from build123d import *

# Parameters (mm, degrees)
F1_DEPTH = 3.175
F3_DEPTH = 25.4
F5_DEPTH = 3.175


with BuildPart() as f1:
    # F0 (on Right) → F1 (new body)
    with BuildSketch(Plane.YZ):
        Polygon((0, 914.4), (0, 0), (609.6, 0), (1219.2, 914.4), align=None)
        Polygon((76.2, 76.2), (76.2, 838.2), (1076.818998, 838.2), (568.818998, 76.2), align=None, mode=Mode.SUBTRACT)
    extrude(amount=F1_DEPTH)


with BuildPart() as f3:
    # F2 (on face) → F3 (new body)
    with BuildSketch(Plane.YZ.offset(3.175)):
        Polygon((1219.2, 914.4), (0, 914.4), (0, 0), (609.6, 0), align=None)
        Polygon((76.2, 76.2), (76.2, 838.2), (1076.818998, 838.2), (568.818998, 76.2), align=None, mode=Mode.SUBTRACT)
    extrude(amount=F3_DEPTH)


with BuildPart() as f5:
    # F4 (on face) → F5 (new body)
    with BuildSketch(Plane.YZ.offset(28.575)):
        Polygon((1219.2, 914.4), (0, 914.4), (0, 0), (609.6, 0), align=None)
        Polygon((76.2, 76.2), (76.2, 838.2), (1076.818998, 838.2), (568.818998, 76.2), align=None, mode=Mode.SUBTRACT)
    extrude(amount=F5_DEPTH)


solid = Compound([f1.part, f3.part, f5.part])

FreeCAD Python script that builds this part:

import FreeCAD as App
import Part
import Sketcher
from FreeCAD import Vector
Q = App.Units.Quantity

doc = App.newDocument("Part")
body = doc.addObject("PartDesign::Body", "Body")

sketch1 = doc.addObject("Sketcher::SketchObject", "Sketch")
body.addObject(sketch1)
sketch1.AttachmentSupport = (doc.YZ_Plane, [""])
sketch1.MapMode = "FlatFace"
sketch1.addGeometry(Part.LineSegment(Vector(0, 914, 0), Vector(0, 0, 0)), False)
sketch1.addGeometry(Part.LineSegment(Vector(0, 0, 0), Vector(610, 0, 0)), False)
sketch1.addGeometry(Part.LineSegment(Vector(610, 0, 0), Vector(1219, 914, 0)), False)
sketch1.addGeometry(Part.LineSegment(Vector(1219, 914, 0), Vector(0, 914, 0)), False)
sketch1.addGeometry(Part.LineSegment(Vector(569, 76, 0), Vector(76, 76, 0)), False)
sketch1.addGeometry(Part.LineSegment(Vector(76, 76, 0), Vector(76, 838, 0)), False)
sketch1.addGeometry(Part.LineSegment(Vector(76, 838, 0), Vector(1077, 838, 0)), False)
sketch1.addGeometry(Part.LineSegment(Vector(1077, 838, 0), Vector(569, 76, 0)), False)
sketch1.addConstraint(Sketcher.Constraint("Coincident", 0, 2, 1, 1))
sketch1.addConstraint(Sketcher.Constraint("Coincident", 1, 2, 2, 1))
sketch1.addConstraint(Sketcher.Constraint("Coincident", 2, 2, 3, 1))
sketch1.addConstraint(Sketcher.Constraint("Coincident", 3, 2, 0, 1))
sketch1.addConstraint(Sketcher.Constraint("Coincident", 4, 2, 5, 1))
sketch1.addConstraint(Sketcher.Constraint("Coincident", 5, 2, 6, 1))
sketch1.addConstraint(Sketcher.Constraint("Coincident", 6, 2, 7, 1))
sketch1.addConstraint(Sketcher.Constraint("Coincident", 7, 2, 4, 1))
sketch1.addConstraint(Sketcher.Constraint("Vertical", 0))
sketch1.addConstraint(Sketcher.Constraint("Horizontal", 1))
sketch1.addConstraint(Sketcher.Constraint("Horizontal", 3))
sketch1.addConstraint(Sketcher.Constraint("Horizontal", 4))
sketch1.addConstraint(Sketcher.Constraint("Vertical", 5))
sketch1.addConstraint(Sketcher.Constraint("Horizontal", 6))
sketch1.addConstraint(Sketcher.Constraint("Coincident", 0, 2, -1, 1))
sketch1.addConstraint(Sketcher.Constraint("Parallel", 2, 7))
sketch1.addConstraint(Sketcher.Constraint("DistanceX", 1, 1, 1, 2, Q("24 in")))
sketch1.addConstraint(Sketcher.Constraint("DistanceX", 3, 2, 3, 1, Q("48 in")))
sketch1.addConstraint(Sketcher.Constraint("DistanceY", 0, 2, 0, 1, Q("36 in")))
sketch1.addConstraint(Sketcher.Constraint("DistanceY", 5, 1, 5, 2, Q("30 in")))
sketch1.addConstraint(Sketcher.Constraint("DistanceX", -1, 1, 4, 2, Q("3 in")))
sketch1.addConstraint(Sketcher.Constraint("DistanceY", -1, 1, 4, 2, Q("3 in")))
sketch1.addConstraint(Sketcher.Constraint("DistanceX", -1, 1, 6, 2, 1076.818998))
pad1 = doc.addObject("PartDesign::Pad", "Pad")
body.addObject(pad1)
pad1.Profile = sketch1
pad1.Length = Q("0.125 in")
body2 = doc.addObject("PartDesign::Body", "Body001")

sketch2 = doc.addObject("Sketcher::SketchObject", "Sketch001")
body2.addObject(sketch2)
sketch2.AttachmentSupport = (doc.getObject("YZ_Plane001"), [""])
sketch2.MapMode = "FlatFace"
sketch2.AttachmentOffset = App.Placement(Vector(0, 0, 0.125 * 25.4), App.Rotation())
sketch2.addGeometry(Part.LineSegment(Vector(1219, 914, 0), Vector(0, 914, 0)), False)
sketch2.addGeometry(Part.LineSegment(Vector(0, 914, 0), Vector(0, 0, 0)), False)
sketch2.addGeometry(Part.LineSegment(Vector(0, 0, 0), Vector(610, 0, 0)), False)
sketch2.addGeometry(Part.LineSegment(Vector(610, 0, 0), Vector(1219, 914, 0)), False)
sketch2.addGeometry(Part.LineSegment(Vector(569, 76, 0), Vector(76, 76, 0)), False)
sketch2.addGeometry(Part.LineSegment(Vector(76, 76, 0), Vector(76, 838, 0)), False)
sketch2.addGeometry(Part.LineSegment(Vector(76, 838, 0), Vector(1077, 838, 0)), False)
sketch2.addGeometry(Part.LineSegment(Vector(1077, 838, 0), Vector(569, 76, 0)), False)
sketch2.addConstraint(Sketcher.Constraint("Coincident", 0, 2, 1, 1))
sketch2.addConstraint(Sketcher.Constraint("Coincident", 1, 2, 2, 1))
sketch2.addConstraint(Sketcher.Constraint("Coincident", 2, 2, 3, 1))
sketch2.addConstraint(Sketcher.Constraint("Coincident", 3, 2, 0, 1))
sketch2.addConstraint(Sketcher.Constraint("Coincident", 4, 2, 5, 1))
sketch2.addConstraint(Sketcher.Constraint("Coincident", 5, 2, 6, 1))
sketch2.addConstraint(Sketcher.Constraint("Coincident", 6, 2, 7, 1))
sketch2.addConstraint(Sketcher.Constraint("Coincident", 7, 2, 4, 1))
sketch2.addConstraint(Sketcher.Constraint("Horizontal", 0))
sketch2.addConstraint(Sketcher.Constraint("Vertical", 1))
sketch2.addConstraint(Sketcher.Constraint("Horizontal", 2))
sketch2.addConstraint(Sketcher.Constraint("Horizontal", 4))
sketch2.addConstraint(Sketcher.Constraint("Vertical", 5))
sketch2.addConstraint(Sketcher.Constraint("Horizontal", 6))
sketch2.addConstraint(Sketcher.Constraint("Coincident", 1, 2, -1, 1))
sketch2.addConstraint(Sketcher.Constraint("Parallel", 3, 7))
sketch2.addConstraint(Sketcher.Constraint("DistanceX", 0, 2, 0, 1, Q("48 in")))
sketch2.addConstraint(Sketcher.Constraint("DistanceX", 2, 1, 2, 2, Q("24 in")))
sketch2.addConstraint(Sketcher.Constraint("DistanceY", 1, 2, 1, 1, Q("36 in")))
sketch2.addConstraint(Sketcher.Constraint("DistanceY", 5, 1, 5, 2, Q("30 in")))
sketch2.addConstraint(Sketcher.Constraint("DistanceX", -1, 1, 4, 2, Q("3 in")))
sketch2.addConstraint(Sketcher.Constraint("DistanceY", -1, 1, 4, 2, Q("3 in")))
sketch2.addConstraint(Sketcher.Constraint("DistanceX", -1, 1, 6, 2, 1076.818998))
pad2 = doc.addObject("PartDesign::Pad", "Pad001")
body2.addObject(pad2)
pad2.Profile = sketch2
pad2.Length = Q("1 in")
body3 = doc.addObject("PartDesign::Body", "Body002")

sketch3 = doc.addObject("Sketcher::SketchObject", "Sketch002")
body3.addObject(sketch3)
sketch3.AttachmentSupport = (doc.getObject("YZ_Plane002"), [""])
sketch3.MapMode = "FlatFace"
sketch3.AttachmentOffset = App.Placement(Vector(0, 0, 1.125 * 25.4), App.Rotation())
sketch3.addGeometry(Part.LineSegment(Vector(1219, 914, 0), Vector(0, 914, 0)), False)
sketch3.addGeometry(Part.LineSegment(Vector(0, 914, 0), Vector(0, 0, 0)), False)
sketch3.addGeometry(Part.LineSegment(Vector(0, 0, 0), Vector(610, 0, 0)), False)
sketch3.addGeometry(Part.LineSegment(Vector(610, 0, 0), Vector(1219, 914, 0)), False)
sketch3.addGeometry(Part.LineSegment(Vector(569, 76, 0), Vector(76, 76, 0)), False)
sketch3.addGeometry(Part.LineSegment(Vector(76, 76, 0), Vector(76, 838, 0)), False)
sketch3.addGeometry(Part.LineSegment(Vector(76, 838, 0), Vector(1077, 838, 0)), False)
sketch3.addGeometry(Part.LineSegment(Vector(1077, 838, 0), Vector(569, 76, 0)), False)
sketch3.addConstraint(Sketcher.Constraint("Coincident", 0, 2, 1, 1))
sketch3.addConstraint(Sketcher.Constraint("Coincident", 1, 2, 2, 1))
sketch3.addConstraint(Sketcher.Constraint("Coincident", 2, 2, 3, 1))
sketch3.addConstraint(Sketcher.Constraint("Coincident", 3, 2, 0, 1))
sketch3.addConstraint(Sketcher.Constraint("Coincident", 4, 2, 5, 1))
sketch3.addConstraint(Sketcher.Constraint("Coincident", 5, 2, 6, 1))
sketch3.addConstraint(Sketcher.Constraint("Coincident", 6, 2, 7, 1))
sketch3.addConstraint(Sketcher.Constraint("Coincident", 7, 2, 4, 1))
sketch3.addConstraint(Sketcher.Constraint("Horizontal", 0))
sketch3.addConstraint(Sketcher.Constraint("Vertical", 1))
sketch3.addConstraint(Sketcher.Constraint("Horizontal", 2))
sketch3.addConstraint(Sketcher.Constraint("Horizontal", 4))
sketch3.addConstraint(Sketcher.Constraint("Vertical", 5))
sketch3.addConstraint(Sketcher.Constraint("Horizontal", 6))
sketch3.addConstraint(Sketcher.Constraint("Coincident", 1, 2, -1, 1))
sketch3.addConstraint(Sketcher.Constraint("Parallel", 3, 7))
sketch3.addConstraint(Sketcher.Constraint("DistanceX", 0, 2, 0, 1, Q("48 in")))
sketch3.addConstraint(Sketcher.Constraint("DistanceX", 2, 1, 2, 2, Q("24 in")))
sketch3.addConstraint(Sketcher.Constraint("DistanceY", 1, 2, 1, 1, Q("36 in")))
sketch3.addConstraint(Sketcher.Constraint("DistanceY", 5, 1, 5, 2, Q("30 in")))
sketch3.addConstraint(Sketcher.Constraint("DistanceX", -1, 1, 4, 2, Q("3 in")))
sketch3.addConstraint(Sketcher.Constraint("DistanceY", -1, 1, 4, 2, Q("3 in")))
sketch3.addConstraint(Sketcher.Constraint("DistanceX", -1, 1, 6, 2, 1076.818998))
pad3 = doc.addObject("PartDesign::Pad", "Pad002")
body3.addObject(pad3)
pad3.Profile = sketch3
pad3.Length = Q("0.125 in")

doc.recompute()
